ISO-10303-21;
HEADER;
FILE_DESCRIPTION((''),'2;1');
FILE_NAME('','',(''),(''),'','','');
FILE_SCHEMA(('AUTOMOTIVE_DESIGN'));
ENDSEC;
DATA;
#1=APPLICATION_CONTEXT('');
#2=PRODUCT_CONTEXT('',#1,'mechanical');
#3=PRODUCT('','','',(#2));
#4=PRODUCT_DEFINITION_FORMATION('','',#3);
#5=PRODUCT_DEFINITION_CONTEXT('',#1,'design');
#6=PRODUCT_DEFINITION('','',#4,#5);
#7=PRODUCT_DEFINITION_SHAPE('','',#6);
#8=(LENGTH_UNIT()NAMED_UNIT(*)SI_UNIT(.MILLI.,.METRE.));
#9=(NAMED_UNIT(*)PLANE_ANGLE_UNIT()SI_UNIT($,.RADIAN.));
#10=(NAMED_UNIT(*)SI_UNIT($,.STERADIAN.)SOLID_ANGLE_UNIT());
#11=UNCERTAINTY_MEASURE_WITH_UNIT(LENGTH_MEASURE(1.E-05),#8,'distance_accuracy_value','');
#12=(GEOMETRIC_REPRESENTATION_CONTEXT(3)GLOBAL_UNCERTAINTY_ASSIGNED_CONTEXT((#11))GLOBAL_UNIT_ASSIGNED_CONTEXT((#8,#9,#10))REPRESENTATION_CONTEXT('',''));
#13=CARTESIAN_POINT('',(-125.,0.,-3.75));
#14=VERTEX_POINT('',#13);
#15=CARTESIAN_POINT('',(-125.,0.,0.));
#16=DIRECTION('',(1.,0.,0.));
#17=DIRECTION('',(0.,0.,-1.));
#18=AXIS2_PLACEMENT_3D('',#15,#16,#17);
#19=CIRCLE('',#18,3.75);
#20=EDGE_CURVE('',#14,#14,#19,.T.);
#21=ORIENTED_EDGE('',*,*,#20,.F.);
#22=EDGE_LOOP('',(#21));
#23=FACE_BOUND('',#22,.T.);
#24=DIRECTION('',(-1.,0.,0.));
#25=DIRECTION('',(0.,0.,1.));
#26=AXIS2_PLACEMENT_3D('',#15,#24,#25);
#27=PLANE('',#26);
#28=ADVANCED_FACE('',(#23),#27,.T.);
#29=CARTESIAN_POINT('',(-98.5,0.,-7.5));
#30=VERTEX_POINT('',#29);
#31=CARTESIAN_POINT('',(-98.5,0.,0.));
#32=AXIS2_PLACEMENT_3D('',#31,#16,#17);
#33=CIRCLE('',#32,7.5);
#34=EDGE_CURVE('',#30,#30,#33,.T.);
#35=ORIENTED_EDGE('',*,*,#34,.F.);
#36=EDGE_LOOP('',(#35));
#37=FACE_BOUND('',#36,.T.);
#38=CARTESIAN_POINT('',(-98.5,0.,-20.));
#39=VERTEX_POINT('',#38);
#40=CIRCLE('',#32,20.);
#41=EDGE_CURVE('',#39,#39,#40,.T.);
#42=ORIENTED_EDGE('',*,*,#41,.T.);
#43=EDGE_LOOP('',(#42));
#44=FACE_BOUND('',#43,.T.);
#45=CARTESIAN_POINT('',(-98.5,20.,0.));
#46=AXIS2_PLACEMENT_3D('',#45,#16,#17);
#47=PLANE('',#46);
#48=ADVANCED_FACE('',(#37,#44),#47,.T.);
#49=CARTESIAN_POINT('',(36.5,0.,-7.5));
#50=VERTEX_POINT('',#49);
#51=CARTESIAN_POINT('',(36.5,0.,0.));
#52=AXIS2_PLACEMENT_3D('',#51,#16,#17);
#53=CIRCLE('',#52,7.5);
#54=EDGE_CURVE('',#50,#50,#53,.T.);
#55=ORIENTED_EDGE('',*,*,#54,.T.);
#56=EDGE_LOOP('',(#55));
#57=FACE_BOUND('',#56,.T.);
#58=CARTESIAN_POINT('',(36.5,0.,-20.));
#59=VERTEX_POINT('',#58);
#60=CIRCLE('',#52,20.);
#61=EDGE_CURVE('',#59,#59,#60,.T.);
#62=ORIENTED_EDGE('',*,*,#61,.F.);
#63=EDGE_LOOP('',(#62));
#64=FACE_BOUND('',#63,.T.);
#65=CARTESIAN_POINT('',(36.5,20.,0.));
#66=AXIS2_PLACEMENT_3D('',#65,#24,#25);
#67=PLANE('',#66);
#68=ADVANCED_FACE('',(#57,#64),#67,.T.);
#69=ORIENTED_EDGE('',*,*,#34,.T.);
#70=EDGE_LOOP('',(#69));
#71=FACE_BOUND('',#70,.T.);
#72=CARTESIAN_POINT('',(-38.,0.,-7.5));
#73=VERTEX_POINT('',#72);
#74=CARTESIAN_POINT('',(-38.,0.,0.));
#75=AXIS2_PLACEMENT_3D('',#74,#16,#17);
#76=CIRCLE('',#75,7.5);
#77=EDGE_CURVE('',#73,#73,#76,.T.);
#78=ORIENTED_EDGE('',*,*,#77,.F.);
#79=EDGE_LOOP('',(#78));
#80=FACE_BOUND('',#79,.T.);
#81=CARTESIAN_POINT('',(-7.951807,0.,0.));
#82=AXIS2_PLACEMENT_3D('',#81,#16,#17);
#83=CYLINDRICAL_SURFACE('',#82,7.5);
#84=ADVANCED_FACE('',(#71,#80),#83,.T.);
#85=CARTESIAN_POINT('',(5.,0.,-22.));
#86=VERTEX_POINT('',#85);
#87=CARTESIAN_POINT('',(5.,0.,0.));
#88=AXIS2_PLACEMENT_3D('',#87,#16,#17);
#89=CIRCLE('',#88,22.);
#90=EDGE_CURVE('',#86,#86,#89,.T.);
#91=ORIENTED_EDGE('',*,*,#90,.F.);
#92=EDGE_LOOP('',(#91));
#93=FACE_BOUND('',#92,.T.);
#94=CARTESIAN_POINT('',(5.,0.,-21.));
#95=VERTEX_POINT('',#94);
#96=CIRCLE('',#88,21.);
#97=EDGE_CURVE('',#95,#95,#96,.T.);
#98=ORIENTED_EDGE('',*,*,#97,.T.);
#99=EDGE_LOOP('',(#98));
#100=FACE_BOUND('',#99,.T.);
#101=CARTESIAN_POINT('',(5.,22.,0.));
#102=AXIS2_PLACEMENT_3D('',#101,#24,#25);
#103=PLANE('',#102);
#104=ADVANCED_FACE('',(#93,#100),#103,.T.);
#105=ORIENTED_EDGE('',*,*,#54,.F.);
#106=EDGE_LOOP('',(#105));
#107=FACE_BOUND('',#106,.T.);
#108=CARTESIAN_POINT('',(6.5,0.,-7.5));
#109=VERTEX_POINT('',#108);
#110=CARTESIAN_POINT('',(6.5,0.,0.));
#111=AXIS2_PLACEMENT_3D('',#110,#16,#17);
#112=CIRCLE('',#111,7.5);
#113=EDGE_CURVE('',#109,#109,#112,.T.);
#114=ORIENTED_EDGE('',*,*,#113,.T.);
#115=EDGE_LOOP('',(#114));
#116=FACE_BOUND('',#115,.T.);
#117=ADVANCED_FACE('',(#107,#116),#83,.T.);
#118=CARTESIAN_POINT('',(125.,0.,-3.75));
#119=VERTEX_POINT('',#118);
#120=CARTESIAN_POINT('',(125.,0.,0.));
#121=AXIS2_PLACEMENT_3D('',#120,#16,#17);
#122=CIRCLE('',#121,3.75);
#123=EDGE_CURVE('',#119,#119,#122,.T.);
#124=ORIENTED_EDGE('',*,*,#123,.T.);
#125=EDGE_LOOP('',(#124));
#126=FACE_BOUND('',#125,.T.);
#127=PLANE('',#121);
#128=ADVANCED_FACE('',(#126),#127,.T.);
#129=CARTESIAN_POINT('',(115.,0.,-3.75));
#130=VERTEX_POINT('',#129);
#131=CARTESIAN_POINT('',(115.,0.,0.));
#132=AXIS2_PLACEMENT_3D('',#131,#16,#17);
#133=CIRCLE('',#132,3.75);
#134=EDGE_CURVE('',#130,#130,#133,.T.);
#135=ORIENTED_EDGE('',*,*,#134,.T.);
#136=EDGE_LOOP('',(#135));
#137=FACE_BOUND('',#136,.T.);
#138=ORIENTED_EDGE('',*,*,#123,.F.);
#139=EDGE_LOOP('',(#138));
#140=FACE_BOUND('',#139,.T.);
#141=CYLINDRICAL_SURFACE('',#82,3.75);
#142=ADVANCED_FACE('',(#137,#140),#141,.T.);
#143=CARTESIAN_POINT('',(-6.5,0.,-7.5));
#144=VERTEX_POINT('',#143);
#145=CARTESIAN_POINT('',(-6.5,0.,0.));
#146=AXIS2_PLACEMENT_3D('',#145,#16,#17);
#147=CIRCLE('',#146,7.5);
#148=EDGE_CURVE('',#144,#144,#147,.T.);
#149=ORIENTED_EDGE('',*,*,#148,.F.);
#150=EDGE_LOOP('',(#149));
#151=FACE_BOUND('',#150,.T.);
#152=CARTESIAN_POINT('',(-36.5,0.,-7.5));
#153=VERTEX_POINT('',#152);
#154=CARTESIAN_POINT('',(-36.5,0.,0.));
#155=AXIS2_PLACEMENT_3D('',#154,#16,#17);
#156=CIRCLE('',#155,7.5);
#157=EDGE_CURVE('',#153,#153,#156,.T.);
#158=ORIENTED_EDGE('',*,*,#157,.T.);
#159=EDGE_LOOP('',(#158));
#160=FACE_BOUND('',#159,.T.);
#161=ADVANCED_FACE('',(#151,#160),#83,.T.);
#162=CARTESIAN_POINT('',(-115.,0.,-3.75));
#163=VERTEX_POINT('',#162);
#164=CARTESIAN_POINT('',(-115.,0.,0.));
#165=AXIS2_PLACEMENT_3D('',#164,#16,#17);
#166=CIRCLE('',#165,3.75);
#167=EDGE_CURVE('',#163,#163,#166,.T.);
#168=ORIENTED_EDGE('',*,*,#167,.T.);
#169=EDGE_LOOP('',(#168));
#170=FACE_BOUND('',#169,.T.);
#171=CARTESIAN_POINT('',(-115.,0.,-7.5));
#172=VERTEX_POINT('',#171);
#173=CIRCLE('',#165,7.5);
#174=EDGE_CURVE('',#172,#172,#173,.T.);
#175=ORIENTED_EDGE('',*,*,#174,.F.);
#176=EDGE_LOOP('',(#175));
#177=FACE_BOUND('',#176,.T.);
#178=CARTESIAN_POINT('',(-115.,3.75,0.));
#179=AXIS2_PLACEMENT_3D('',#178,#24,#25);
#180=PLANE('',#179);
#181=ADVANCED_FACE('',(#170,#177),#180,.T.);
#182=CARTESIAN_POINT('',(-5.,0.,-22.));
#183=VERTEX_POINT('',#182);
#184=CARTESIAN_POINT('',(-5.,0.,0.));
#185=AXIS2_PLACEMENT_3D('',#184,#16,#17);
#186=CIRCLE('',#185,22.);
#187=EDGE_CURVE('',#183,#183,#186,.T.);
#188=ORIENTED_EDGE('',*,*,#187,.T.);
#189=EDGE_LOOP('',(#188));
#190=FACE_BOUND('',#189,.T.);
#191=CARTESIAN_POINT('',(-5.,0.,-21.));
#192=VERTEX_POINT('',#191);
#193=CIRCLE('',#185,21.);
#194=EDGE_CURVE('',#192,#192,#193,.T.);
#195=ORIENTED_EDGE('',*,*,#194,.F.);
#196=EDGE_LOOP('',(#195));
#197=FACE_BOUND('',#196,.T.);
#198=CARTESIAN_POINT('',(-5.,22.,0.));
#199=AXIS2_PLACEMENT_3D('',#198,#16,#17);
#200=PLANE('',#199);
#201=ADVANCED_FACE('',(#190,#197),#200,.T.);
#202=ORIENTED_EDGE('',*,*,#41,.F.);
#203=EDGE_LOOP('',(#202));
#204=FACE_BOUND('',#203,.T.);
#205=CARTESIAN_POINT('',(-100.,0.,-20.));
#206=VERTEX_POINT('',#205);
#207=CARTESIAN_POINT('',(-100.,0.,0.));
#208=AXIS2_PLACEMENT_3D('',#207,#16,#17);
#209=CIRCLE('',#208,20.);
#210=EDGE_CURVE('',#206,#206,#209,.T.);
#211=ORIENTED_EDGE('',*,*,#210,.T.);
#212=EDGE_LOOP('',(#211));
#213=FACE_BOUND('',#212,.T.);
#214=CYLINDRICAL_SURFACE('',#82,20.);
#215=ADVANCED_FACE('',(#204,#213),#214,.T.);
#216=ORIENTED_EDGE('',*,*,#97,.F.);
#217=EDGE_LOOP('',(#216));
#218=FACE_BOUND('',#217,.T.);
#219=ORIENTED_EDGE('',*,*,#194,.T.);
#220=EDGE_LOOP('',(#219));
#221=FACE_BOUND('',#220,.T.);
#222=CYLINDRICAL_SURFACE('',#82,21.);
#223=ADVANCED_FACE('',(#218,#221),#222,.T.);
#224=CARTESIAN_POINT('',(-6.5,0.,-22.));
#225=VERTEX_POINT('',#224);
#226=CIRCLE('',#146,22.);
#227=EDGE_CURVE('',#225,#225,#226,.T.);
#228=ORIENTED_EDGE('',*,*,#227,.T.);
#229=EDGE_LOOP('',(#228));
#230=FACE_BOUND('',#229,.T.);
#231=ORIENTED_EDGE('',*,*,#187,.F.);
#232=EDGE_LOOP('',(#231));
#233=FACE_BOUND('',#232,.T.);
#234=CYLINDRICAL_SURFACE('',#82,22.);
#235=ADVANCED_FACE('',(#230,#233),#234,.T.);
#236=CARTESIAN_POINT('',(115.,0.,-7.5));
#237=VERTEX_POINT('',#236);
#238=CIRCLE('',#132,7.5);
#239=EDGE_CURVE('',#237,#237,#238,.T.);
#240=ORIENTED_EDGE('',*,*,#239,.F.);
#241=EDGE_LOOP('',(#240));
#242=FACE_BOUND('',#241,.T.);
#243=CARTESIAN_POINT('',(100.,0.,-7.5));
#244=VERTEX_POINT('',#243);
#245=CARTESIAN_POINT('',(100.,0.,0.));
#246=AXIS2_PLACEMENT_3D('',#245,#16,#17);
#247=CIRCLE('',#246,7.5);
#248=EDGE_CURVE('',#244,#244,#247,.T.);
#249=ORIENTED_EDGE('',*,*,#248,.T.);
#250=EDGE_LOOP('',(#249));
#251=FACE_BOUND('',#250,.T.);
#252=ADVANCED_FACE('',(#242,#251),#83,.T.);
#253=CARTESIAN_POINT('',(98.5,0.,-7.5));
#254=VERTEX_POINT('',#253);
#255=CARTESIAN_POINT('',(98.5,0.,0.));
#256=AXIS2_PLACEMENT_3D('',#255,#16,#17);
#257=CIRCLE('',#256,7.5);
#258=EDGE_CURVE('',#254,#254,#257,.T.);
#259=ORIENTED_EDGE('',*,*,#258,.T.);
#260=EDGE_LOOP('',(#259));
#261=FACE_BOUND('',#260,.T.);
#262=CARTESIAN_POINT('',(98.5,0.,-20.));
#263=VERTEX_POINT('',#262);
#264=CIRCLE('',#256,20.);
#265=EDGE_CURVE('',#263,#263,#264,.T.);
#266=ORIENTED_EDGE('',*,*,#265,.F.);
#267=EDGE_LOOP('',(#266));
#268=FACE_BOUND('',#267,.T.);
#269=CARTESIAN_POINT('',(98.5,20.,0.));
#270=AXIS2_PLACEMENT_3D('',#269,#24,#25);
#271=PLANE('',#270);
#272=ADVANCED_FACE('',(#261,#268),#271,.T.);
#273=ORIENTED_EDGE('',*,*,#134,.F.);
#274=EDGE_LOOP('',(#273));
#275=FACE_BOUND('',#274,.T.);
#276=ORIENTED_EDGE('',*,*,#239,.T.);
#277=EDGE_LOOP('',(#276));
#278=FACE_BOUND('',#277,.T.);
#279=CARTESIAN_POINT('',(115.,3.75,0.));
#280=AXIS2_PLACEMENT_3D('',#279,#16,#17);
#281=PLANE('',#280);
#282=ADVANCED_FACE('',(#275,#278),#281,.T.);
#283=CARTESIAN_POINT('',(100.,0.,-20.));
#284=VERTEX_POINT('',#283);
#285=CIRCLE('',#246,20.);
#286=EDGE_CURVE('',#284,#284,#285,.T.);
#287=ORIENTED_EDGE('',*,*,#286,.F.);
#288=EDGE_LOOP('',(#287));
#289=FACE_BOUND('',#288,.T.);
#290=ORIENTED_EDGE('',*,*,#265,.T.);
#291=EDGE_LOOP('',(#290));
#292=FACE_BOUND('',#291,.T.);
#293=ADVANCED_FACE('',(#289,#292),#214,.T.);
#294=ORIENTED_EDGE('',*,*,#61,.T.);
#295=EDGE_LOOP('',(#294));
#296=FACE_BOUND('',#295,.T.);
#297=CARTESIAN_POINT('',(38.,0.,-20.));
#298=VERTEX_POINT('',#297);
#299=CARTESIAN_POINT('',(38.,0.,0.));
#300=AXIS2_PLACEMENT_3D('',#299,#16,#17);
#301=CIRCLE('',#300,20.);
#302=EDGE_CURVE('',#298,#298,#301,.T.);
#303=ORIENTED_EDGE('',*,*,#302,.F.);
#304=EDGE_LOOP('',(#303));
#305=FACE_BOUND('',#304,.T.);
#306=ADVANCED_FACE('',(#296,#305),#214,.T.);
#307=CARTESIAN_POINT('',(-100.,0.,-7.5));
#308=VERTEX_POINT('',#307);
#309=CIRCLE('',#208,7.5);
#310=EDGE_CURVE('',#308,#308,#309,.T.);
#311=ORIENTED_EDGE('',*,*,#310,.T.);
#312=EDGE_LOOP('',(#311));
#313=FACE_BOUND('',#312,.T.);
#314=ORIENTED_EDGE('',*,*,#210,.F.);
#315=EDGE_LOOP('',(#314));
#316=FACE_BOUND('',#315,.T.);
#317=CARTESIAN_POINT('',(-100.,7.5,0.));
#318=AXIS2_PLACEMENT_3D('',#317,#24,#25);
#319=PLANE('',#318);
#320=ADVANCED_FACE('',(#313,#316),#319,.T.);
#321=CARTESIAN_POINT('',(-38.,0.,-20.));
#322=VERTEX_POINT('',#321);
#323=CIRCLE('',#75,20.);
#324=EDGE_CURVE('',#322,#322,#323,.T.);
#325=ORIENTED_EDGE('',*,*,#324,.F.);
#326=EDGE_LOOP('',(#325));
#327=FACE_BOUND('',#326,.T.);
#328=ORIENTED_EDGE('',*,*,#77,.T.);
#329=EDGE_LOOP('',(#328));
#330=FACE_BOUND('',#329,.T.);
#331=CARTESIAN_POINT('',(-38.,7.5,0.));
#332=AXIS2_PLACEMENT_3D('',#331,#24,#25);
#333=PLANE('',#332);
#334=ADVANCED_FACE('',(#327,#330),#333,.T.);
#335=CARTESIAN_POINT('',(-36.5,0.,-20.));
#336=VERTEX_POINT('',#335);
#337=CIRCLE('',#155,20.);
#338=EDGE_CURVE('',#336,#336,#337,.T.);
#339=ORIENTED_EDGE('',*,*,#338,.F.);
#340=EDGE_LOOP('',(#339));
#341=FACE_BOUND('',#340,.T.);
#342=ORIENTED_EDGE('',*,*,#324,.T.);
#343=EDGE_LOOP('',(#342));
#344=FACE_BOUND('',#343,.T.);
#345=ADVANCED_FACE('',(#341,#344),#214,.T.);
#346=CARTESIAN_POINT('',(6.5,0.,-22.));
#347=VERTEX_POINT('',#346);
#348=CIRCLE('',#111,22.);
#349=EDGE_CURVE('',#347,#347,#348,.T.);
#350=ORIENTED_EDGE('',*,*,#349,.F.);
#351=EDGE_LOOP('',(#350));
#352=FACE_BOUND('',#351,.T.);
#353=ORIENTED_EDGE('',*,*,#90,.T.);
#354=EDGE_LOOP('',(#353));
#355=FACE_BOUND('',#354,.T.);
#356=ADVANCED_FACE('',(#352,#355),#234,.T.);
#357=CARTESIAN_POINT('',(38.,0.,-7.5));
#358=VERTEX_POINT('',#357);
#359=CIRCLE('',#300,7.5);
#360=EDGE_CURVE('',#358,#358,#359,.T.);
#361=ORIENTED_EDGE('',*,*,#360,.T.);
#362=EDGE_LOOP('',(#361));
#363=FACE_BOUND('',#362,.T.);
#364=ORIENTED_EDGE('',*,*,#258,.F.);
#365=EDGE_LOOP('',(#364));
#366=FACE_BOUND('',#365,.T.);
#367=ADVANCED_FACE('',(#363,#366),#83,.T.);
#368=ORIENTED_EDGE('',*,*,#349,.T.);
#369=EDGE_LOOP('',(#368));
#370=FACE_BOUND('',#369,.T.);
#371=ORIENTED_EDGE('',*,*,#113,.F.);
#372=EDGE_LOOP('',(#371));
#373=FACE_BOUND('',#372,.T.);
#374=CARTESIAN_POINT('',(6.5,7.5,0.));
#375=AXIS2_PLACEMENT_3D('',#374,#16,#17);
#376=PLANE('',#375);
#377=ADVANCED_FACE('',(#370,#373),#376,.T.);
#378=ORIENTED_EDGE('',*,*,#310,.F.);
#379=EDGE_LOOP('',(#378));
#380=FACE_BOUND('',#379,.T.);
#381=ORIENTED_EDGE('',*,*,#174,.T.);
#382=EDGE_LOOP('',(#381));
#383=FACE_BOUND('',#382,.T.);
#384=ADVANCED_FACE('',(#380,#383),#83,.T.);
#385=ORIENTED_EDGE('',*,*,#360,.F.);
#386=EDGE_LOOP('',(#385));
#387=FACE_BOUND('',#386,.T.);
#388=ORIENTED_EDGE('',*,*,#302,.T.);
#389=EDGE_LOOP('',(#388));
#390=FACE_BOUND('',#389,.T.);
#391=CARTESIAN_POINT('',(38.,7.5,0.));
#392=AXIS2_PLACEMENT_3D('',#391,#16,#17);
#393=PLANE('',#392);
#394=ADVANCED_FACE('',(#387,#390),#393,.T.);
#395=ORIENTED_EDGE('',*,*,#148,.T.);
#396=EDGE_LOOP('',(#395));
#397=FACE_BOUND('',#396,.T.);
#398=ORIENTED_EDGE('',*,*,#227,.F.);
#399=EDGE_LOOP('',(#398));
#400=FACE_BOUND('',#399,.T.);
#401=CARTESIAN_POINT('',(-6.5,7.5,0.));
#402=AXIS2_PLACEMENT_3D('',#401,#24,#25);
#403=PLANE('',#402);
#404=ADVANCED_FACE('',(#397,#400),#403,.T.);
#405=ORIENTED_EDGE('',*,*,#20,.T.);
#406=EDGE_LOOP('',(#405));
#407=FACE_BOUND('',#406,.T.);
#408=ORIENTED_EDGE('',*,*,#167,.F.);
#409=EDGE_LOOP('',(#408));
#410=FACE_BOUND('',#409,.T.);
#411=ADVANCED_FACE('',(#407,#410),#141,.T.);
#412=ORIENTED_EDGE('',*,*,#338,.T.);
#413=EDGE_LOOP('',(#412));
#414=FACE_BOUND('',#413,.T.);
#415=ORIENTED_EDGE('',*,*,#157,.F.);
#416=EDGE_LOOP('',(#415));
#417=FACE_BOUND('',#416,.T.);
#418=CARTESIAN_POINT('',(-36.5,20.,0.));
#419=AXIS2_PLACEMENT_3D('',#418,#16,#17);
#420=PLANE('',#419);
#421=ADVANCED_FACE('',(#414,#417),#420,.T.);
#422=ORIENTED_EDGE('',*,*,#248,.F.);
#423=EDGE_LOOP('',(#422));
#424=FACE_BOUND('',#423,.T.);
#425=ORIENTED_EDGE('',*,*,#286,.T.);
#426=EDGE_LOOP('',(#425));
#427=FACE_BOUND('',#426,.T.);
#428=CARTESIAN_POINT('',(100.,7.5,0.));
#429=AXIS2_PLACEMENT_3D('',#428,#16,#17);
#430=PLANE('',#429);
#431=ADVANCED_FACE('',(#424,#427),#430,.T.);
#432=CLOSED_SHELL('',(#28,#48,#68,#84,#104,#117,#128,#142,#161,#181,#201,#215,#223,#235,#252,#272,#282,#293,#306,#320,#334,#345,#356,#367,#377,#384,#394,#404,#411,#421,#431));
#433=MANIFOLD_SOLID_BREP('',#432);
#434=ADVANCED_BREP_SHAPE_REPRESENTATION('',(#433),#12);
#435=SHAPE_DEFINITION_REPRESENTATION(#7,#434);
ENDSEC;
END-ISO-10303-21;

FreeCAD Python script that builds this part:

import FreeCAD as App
import Part
import Sketcher


def add_polygon(sketch, points):
    """Adds a closed chain of lines whose ends are joined by coincident constraints."""
    first, n = sketch.GeometryCount, len(points)
    for a, b in zip(points, points[1:] + points[:1]):
        sketch.addGeometry(Part.LineSegment(App.Vector(*a, 0), App.Vector(*b, 0)), False)
    for i in range(n):
        sketch.addConstraint(Sketcher.Constraint("Coincident", first + i, 2, first + (i + 1) % n, 1))

doc = App.newDocument("Part")
body = doc.addObject("PartDesign::Body", "Body")

# Sketch on XY plane
sketch1 = doc.addObject("Sketcher::SketchObject", "Sketch")
body.addObject(sketch1)
sketch1.AttachmentSupport = (doc.XY_Plane, [""])
sketch1.MapMode = "FlatFace"
add_polygon(sketch1, [(-125, 3.8), (-125, 0), (125, 0), (125, 3.8), (115, 3.8), (115, 7.5), (100, 7.5), (100, 20), (98.5, 20), (98.5, 7.5), (38, 7.5), (38, 20), (36.5, 20), (36.5, 7.5), (6.5, 7.5), (6.5, 22), (5, 22), (5, 21), (-5, 21), (-5, 22), (-6.5, 22), (-6.5, 7.5), (-36.5, 7.5), (-36.5, 20), (-38, 20), (-38, 7.5), (-98.5, 7.5), (-98.5, 20), (-100, 20), (-100, 7.5), (-115, 7.5), (-115, 3.8)])  # lines 0-31
sketch1.addConstraint([
    Sketcher.Constraint("Vertical", 0),
    Sketcher.Constraint("Horizontal", 1),
    Sketcher.Constraint("Vertical", 2),
    Sketcher.Constraint("Horizontal", 3),
    Sketcher.Constraint("Vertical", 4),
    Sketcher.Constraint("Horizontal", 5),
    Sketcher.Constraint("Vertical", 6),
    Sketcher.Constraint("Horizontal", 7),
    Sketcher.Constraint("Vertical", 8),
    Sketcher.Constraint("Horizontal", 9),
    Sketcher.Constraint("Vertical", 10),
    Sketcher.Constraint("Horizontal", 11),
    Sketcher.Constraint("Vertical", 12),
    Sketcher.Constraint("Horizontal", 13),
    Sketcher.Constraint("Vertical", 14),
    Sketcher.Constraint("Horizontal", 15),
    Sketcher.Constraint("Vertical", 16),
    Sketcher.Constraint("Horizontal", 17),
    Sketcher.Constraint("Vertical", 18),
    Sketcher.Constraint("Horizontal", 19),
    Sketcher.Constraint("Vertical", 20),
    Sketcher.Constraint("Horizontal", 21),
    Sketcher.Constraint("Vertical", 22),
    Sketcher.Constraint("Horizontal", 23),
    Sketcher.Constraint("Vertical", 24),
    Sketcher.Constraint("Horizontal", 25),
    Sketcher.Constraint("Vertical", 26),
    Sketcher.Constraint("Horizontal", 27),
    Sketcher.Constraint("Vertical", 28),
    Sketcher.Constraint("Horizontal", 29),
    Sketcher.Constraint("Vertical", 30),
    Sketcher.Constraint("Horizontal", 31),
    Sketcher.Constraint("Symmetric", 0, 2, 1, 2, -1, 1),
    Sketcher.Constraint("Symmetric", 15, 2, 18, 2, -2),
    Sketcher.Constraint("Symmetric", 13, 2, 20, 2, -2),
    Sketcher.Constraint("Symmetric", 11, 2, 22, 2, -2),
    Sketcher.Constraint("Symmetric", 9, 2, 24, 2, -2),
    Sketcher.Constraint("Symmetric", 7, 2, 26, 2, -2),
    Sketcher.Constraint("Symmetric", 5, 2, 28, 2, -2),
    Sketcher.Constraint("Symmetric", 3, 2, 30, 2, -2),
    Sketcher.Constraint("Horizontal", 5, 2, 8, 2),
    Sketcher.Constraint("Horizontal", 7, 2, 10, 2),
    Sketcher.Constraint("Horizontal", 9, 2, 12, 2),
    Sketcher.Constraint("Equal", 7, 11),
    Sketcher.Constraint("Equal", 11, 15),
    Sketcher.Constraint("Equal", 3, 17),
    Sketcher.Constraint("Equal", 2, 4),
    Sketcher.Constraint("DistanceX", 1, 1, 1, 2, 250.0),
    Sketcher.Constraint("DistanceX", 3, 2, 3, 1, 10.0),
    Sketcher.Constraint("DistanceX", 5, 2, 5, 1, 15.0),
    Sketcher.Constraint("DistanceX", 13, 2, 13, 1, 30.0),
    Sketcher.Constraint("DistanceY", 16, 2, 16, 1, 1.0),
    Sketcher.Constraint("DistanceX", 7, 2, 7, 1, 1.5),
    Sketcher.Constraint("DistanceY", 6, 1, 6, 2, 12.5),
    Sketcher.Constraint("DistanceY", 14, 1, 14, 2, 14.5),
    Sketcher.Constraint("DistanceY", -1, 1, 6, 2, 20.0),
])
revolution = doc.addObject("PartDesign::Revolution", "Revolution")
body.addObject(revolution)
revolution.Profile = sketch1
revolution.ReferenceAxis = (sketch1, ["H_Axis"])
revolution.Angle = 360

doc.recompute()
